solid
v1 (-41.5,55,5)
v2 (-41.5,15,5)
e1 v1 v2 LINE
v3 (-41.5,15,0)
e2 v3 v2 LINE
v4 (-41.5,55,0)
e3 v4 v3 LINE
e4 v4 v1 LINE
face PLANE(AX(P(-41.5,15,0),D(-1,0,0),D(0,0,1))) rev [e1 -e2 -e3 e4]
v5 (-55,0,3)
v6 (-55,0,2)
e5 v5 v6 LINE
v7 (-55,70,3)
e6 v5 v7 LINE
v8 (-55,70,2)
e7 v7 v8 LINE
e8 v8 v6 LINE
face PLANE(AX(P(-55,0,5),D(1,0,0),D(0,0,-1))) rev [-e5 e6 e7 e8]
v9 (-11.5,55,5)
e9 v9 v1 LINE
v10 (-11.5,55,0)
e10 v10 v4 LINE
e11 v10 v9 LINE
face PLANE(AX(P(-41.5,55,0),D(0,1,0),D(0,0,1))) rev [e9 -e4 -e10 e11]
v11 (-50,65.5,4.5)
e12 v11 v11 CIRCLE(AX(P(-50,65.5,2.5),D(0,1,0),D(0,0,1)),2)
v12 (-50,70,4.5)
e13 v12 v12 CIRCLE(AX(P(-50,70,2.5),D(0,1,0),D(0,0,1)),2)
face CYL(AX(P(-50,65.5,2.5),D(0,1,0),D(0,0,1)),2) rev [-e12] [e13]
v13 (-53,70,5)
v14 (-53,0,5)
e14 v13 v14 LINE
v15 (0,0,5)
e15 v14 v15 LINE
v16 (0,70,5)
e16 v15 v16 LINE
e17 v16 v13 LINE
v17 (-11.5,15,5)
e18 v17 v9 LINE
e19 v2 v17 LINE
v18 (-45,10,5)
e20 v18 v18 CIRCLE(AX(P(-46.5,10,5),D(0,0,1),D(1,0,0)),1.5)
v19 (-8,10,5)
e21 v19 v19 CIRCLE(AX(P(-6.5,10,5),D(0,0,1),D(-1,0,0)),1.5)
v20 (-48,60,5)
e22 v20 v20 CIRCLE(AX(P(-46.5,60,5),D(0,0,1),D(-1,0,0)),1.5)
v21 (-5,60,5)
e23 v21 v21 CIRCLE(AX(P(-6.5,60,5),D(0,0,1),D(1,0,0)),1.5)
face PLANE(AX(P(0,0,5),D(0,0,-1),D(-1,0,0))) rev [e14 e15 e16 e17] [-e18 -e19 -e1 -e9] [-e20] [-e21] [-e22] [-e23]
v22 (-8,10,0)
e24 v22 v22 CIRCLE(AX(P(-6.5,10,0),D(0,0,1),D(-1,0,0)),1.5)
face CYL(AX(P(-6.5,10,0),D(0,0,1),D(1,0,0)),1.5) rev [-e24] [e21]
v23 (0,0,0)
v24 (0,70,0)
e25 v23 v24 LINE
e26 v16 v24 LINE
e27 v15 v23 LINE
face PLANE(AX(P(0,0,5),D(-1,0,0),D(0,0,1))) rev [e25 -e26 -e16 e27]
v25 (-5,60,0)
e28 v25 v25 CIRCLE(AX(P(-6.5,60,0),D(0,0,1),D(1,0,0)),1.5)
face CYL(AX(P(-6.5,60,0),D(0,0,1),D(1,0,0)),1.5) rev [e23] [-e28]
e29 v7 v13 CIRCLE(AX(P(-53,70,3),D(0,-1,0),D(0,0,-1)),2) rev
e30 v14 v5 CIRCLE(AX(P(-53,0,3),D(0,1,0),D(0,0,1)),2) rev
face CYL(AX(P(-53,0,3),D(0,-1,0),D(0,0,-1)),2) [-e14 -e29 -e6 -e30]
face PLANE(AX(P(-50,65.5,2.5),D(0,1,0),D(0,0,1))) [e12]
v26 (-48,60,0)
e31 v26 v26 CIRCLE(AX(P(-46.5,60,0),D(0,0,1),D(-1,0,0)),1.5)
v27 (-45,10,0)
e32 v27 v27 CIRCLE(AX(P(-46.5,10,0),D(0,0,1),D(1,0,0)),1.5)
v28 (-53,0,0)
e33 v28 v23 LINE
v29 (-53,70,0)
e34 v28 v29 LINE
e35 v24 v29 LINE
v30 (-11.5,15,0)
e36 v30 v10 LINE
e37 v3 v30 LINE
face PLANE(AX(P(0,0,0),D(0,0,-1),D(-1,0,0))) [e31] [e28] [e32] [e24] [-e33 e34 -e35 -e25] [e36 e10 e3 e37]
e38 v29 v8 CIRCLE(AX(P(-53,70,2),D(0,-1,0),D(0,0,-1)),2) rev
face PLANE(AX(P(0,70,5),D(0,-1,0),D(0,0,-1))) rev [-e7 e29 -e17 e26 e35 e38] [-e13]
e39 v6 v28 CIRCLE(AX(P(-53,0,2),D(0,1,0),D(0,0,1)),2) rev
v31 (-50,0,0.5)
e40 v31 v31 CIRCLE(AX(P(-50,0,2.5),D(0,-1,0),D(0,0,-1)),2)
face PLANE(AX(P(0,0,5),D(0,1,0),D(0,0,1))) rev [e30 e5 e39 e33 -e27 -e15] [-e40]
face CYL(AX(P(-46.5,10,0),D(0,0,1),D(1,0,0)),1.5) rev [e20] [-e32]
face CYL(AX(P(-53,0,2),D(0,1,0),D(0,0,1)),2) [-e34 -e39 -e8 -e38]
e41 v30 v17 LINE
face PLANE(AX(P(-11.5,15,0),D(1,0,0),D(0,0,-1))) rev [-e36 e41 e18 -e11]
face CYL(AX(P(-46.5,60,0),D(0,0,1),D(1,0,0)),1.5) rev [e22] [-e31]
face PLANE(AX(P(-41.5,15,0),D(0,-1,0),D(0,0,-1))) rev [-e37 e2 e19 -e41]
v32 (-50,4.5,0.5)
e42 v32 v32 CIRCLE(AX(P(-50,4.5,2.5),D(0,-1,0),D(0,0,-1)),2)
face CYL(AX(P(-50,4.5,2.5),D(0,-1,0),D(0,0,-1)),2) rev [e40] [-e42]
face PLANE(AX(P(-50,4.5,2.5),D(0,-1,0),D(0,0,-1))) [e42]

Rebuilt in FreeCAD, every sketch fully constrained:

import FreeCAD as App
import Part
import Sketcher

V = App.Vector


def edges_at(feature, points):
    """Names of the edges that pass closest to the given points."""
    edges = feature.Shape.Edges
    near = lambda p: min(range(len(edges)), key=lambda i: edges[i].distToShape(Part.Vertex(*p))[0])
    return sorted({f"Edge{near(p) + 1}" for p in points})

doc = App.newDocument("Part")
body = doc.addObject("PartDesign::Body", "Body")

# Sketch on XY plane
sketch1 = body.newObject("Sketcher::SketchObject", "Sketch")
sketch1.AttachmentSupport = (doc.getObject("XY_Plane"), [""])
sketch1.MapMode = "FlatFace"
sketch1.addGeometry([
    Part.LineSegment(V(-55, 0, 0), V(0, 0, 0)),
    Part.LineSegment(V(0, 0, 0), V(0, 70, 0)),
    Part.LineSegment(V(0, 70, 0), V(-55, 70, 0)),
    Part.LineSegment(V(-55, 70, 0), V(-55, 0, 0)),
], False)
sketch1.addConstraint([
    Sketcher.Constraint("Coincident", 0, 2, 1, 1),
    Sketcher.Constraint("Coincident", 1, 2, 2, 1),
    Sketcher.Constraint("Coincident", 2, 2, 3, 1),
    Sketcher.Constraint("Coincident", 3, 2, 0, 1),
    Sketcher.Constraint("Horizontal", 0),
    Sketcher.Constraint("Vertical", 1),
    Sketcher.Constraint("Horizontal", 2),
    Sketcher.Constraint("Vertical", 3),
    Sketcher.Constraint("Coincident", 0, 2, -1, 1),
    Sketcher.Constraint("DistanceX", 0, 1, 0, 2, 55.0),
    Sketcher.Constraint("DistanceY", 1, 1, 1, 2, 70.0),
])
pad1 = body.newObject("PartDesign::Pad", "Pad")
pad1.Profile = sketch1
pad1.Length = 5

# Sketch on XZ plane
sketch2 = body.newObject("Sketcher::SketchObject", "Sketch001")
sketch2.AttachmentSupport = (doc.getObject("XZ_Plane"), [""])
sketch2.MapMode = "FlatFace"
sketch2.AttachmentOffset = App.Placement(V(0, 0, -70), App.Rotation())
sketch2.addGeometry(Part.Circle(V(-50, 2.5, 0), V(0, 0, 1), 2), False)
sketch2.addConstraint([
    Sketcher.Constraint("Diameter", 0, 4.0),
    Sketcher.Constraint("DistanceX", 0, 3, -1, 1, 50.0),
    Sketcher.Constraint("DistanceY", -1, 1, 0, 3, 2.5),
])
pocket1 = body.newObject("PartDesign::Pocket", "Pocket")
pocket1.Profile = sketch2
pocket1.Length = 4.5
pocket1.Reversed = True

# Sketch on XZ plane
sketch3 = body.newObject("Sketcher::SketchObject", "Sketch002")
sketch3.AttachmentSupport = (doc.getObject("XZ_Plane"), [""])
sketch3.MapMode = "FlatFace"
sketch3.addGeometry(Part.Circle(V(-50, 2.5, 0), V(0, 0, 1), 2), False)
sketch3.addConstraint([
    Sketcher.Constraint("Diameter", 0, 4.0),
    Sketcher.Constraint("DistanceX", 0, 3, -1, 1, 50.0),
    Sketcher.Constraint("DistanceY", -1, 1, 0, 3, 2.5),
])
pocket2 = body.newObject("PartDesign::Pocket", "Pocket001")
pocket2.Profile = sketch3
pocket2.Length = 4.5
doc.recompute()

fillet = body.newObject("PartDesign::Fillet", "Fillet")
fillet.Base = (pocket2, edges_at(pocket2, [(-55, 35, 5), (-55, 35, 0)]))
fillet.Radius = 2

# Sketch on XY plane
sketch4 = body.newObject("Sketcher::SketchObject", "Sketch003")
sketch4.AttachmentSupport = (doc.getObject("XY_Plane"), [""])
sketch4.MapMode = "FlatFace"
sketch4.AttachmentOffset = App.Placement(V(0, 0, 5), App.Rotation())
sketch4.addGeometry([
    Part.Circle(V(-6.5, 60, 0), V(0, 0, 1), 1.5),  # 0
    Part.Circle(V(-46.5, 60, 0), V(0, 0, 1), 1.5),  # 1
    Part.Circle(V(-6.5, 10, 0), V(0, 0, 1), 1.5),  # 2
    Part.Circle(V(-46.5, 10, 0), V(0, 0, 1), 1.5),  # 3
    Part.LineSegment(V(-41.5, 55, 0), V(-41.5, 15, 0)),  # 4
    Part.LineSegment(V(-41.5, 15, 0), V(-11.5, 15, 0)),  # 5
    Part.LineSegment(V(-11.5, 15, 0), V(-11.5, 55, 0)),  # 6
    Part.LineSegment(V(-11.5, 55, 0), V(-41.5, 55, 0)),  # 7
], False)
sketch4.addConstraint([
    Sketcher.Constraint("Coincident", 4, 2, 5, 1),
    Sketcher.Constraint("Coincident", 5, 2, 6, 1),
    Sketcher.Constraint("Coincident", 6, 2, 7, 1),
    Sketcher.Constraint("Coincident", 7, 2, 4, 1),
    Sketcher.Constraint("Vertical", 4),
    Sketcher.Constraint("Horizontal", 5),
    Sketcher.Constraint("Vertical", 6),
    Sketcher.Constraint("Horizontal", 7),
    Sketcher.Constraint("Equal", 0, 1),
    Sketcher.Constraint("Equal", 1, 2),
    Sketcher.Constraint("Equal", 2, 3),
    Sketcher.Constraint("Horizontal", 0, 3, 1, 3),
    Sketcher.Constraint("Horizontal", 2, 3, 3, 3),
    Sketcher.Constraint("Vertical", 0, 3, 2, 3),
    Sketcher.Constraint("Vertical", 1, 3, 3, 3),
    Sketcher.Constraint("Diameter", 0, 3.0),
    Sketcher.Constraint("DistanceX", 5, 1, 5, 2, 30.0),
    Sketcher.Constraint("DistanceY", 4, 2, 4, 1, 40.0),
    Sketcher.Constraint("DistanceY", -1, 1, 0, 3, 60.0),
    Sketcher.Constraint("DistanceY", -1, 1, 2, 3, 10.0),
    Sketcher.Constraint("DistanceY", -1, 1, 4, 2, 15.0),
    Sketcher.Constraint("DistanceX", 1, 3, 0, 3, 40.0),
    Sketcher.Constraint("DistanceX", 3, 3, 4, 2, 5.0),
    Sketcher.Constraint("DistanceX", 0, 3, -1, 1, 6.5),
])
pocket3 = body.newObject("PartDesign::Pocket", "Pocket002")
pocket3.Profile = sketch4
pocket3.Type = "ThroughAll"

doc.recompute()
